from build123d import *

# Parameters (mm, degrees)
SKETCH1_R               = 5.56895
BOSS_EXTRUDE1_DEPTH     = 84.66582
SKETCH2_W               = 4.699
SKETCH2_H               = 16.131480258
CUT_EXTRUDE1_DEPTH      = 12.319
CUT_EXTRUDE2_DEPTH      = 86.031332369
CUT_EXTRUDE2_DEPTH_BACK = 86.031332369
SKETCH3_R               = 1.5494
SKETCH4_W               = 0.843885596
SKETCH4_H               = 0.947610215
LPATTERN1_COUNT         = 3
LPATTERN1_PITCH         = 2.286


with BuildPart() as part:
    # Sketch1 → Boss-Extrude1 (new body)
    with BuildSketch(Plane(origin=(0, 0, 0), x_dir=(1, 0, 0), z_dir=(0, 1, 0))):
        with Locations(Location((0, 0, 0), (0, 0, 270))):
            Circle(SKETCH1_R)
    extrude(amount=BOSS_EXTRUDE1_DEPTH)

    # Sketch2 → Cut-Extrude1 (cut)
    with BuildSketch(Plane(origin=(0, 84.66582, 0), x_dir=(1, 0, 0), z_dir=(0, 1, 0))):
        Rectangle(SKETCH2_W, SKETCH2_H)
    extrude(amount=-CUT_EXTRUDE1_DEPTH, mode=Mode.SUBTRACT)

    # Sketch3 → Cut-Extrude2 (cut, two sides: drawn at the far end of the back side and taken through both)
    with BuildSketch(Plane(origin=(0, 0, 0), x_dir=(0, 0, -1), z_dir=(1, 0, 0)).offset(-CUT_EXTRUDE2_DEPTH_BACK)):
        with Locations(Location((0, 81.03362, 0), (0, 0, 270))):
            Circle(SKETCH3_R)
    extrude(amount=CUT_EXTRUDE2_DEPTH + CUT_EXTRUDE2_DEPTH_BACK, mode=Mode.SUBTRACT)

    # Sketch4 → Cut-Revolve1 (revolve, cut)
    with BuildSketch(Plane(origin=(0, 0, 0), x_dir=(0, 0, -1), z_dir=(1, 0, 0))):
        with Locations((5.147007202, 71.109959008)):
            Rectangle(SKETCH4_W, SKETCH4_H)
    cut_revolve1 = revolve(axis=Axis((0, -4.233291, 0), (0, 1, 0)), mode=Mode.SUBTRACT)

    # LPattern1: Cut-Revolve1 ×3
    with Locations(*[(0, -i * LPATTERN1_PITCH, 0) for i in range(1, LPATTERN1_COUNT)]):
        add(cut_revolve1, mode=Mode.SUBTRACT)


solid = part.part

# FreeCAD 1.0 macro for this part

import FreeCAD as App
import Part
import Sketcher
from FreeCAD import Vector
Q = App.Units.Quantity

doc = App.newDocument("Part")
params = doc.addObject("Spreadsheet::Sheet", "Params")
for row, (alias, value) in enumerate([
    ("pad1_length", "3.3333 in"),
    ("sketch2_width", "0.185 in"),
    ("pocket1_length", "0.485 in"),
    ("sketch3_diameter", "0.122 in"),
    ("groove_angle", "360 deg"),
    ("linearpattern_pitch", "0.09 in"),
], start=1):
    params.set(f"A{row}", alias)
    params.set(f"B{row}", "=" + value)
    params.setAlias(f"B{row}", alias)

body = doc.addObject("PartDesign::Body", "Body")

# Sketch on XZ plane
sketch1 = body.newObject("Sketcher::SketchObject", "Sketch")
sketch1.AttachmentSupport = (doc.getObject("XZ_Plane"), [""])
sketch1.MapMode = "FlatFace"
sketch1.addGeometry(Part.Circle(Vector(0, 0, 0), Vector(0, 0, 1), 6), False)
sketch1.addConstraint([
    Sketcher.Constraint("Coincident", 0, 3, -1, 1),
    Sketcher.Constraint("Diameter", 0, Q("0.4385 in")),
])
pad1 = body.newObject("PartDesign::Pad", "Pad")
pad1.Profile = sketch1
pad1.setExpression("Length", "Params.pad1_length")
pad1.Reversed = True

# Sketch on XZ plane
sketch2 = body.newObject("Sketcher::SketchObject", "Sketch001")
sketch2.AttachmentSupport = (doc.getObject("XZ_Plane"), [""])
sketch2.MapMode = "FlatFace"
sketch2.AttachmentOffset = App.Placement(Vector(0, 0, -3.3333 * 25.4), App.Rotation())
sketch2.addGeometry([
    Part.LineSegment(Vector(-2.3, -8.1, 0), Vector(-2.3, 8.1, 0)),
    Part.LineSegment(Vector(-2.3, 8.1, 0), Vector(2.3, 8.1, 0)),
    Part.LineSegment(Vector(2.3, 8.1, 0), Vector(2.3, -8.1, 0)),
    Part.LineSegment(Vector(2.3, -8.1, 0), Vector(-2.3, -8.1, 0)),
], False)
sketch2.addConstraint([
    Sketcher.Constraint("Coincident", 0, 2, 1, 1),
    Sketcher.Constraint("Coincident", 1, 2, 2, 1),
    Sketcher.Constraint("Coincident", 2, 2, 3, 1),
    Sketcher.Constraint("Coincident", 3, 2, 0, 1),
    Sketcher.Constraint("Vertical", 0),
    Sketcher.Constraint("Horizontal", 1),
    Sketcher.Constraint("Vertical", 2),
    Sketcher.Constraint("Horizontal", 3),
    Sketcher.Constraint("Symmetric", 0, 2, 2, 2, -1, 1),
    Sketcher.Constraint("DistanceX", 1, 1, 1, 2, Q("0.185 in")),
    Sketcher.Constraint("DistanceY", 0, 1, 0, 2, 16.13148),
])
sketch2.setExpression("Constraints[9]", "Params.sketch2_width")
pocket1 = body.newObject("PartDesign::Pocket", "Pocket")
pocket1.Profile = sketch2
pocket1.setExpression("Length", "Params.pocket1_length")
pocket1.Reversed = True

# Sketch on YZ plane
sketch3 = body.newObject("Sketcher::SketchObject", "Sketch002")
sketch3.AttachmentSupport = (doc.getObject("YZ_Plane"), [""])
sketch3.MapMode = "FlatFace"
sketch3.addGeometry(Part.Circle(Vector(81, 0, 0), Vector(0, 0, 1), 1.5), False)
sketch3.addConstraint([
    Sketcher.Constraint("PointOnObject", 0, 3, -1),
    Sketcher.Constraint("Diameter", 0, Q("0.122 in")),
    Sketcher.Constraint("DistanceX", -1, 1, 0, 3, Q("3.1903 in")),
])
sketch3.setExpression("Constraints[1]", "Params.sketch3_diameter")
pocket2 = body.newObject("PartDesign::Pocket", "Pocket001")
pocket2.Profile = sketch3
pocket2.Type = "ThroughAll"
pocket2.Midplane = True

# Sketch on YZ plane
sketch4 = body.newObject("Sketcher::SketchObject", "Sketch003")
sketch4.AttachmentSupport = (doc.getObject("YZ_Plane"), [""])
sketch4.MapMode = "FlatFace"
sketch4.addGeometry([
    Part.LineSegment(Vector(71.6, -4.7, 0), Vector(70.6, -4.7, 0)),
    Part.LineSegment(Vector(70.6, -4.7, 0), Vector(70.6, -5.6, 0)),
    Part.LineSegment(Vector(70.6, -5.6, 0), Vector(71.6, -5.6, 0)),
    Part.LineSegment(Vector(71.6, -5.6, 0), Vector(71.6, -4.7, 0)),
], False)
sketch4.addConstraint([
    Sketcher.Constraint("Coincident", 0, 2, 1, 1),
    Sketcher.Constraint("Coincident", 1, 2, 2, 1),
    Sketcher.Constraint("Coincident", 2, 2, 3, 1),
    Sketcher.Constraint("Coincident", 3, 2, 0, 1),
    Sketcher.Constraint("Horizontal", 0),
    Sketcher.Constraint("Vertical", 1),
    Sketcher.Constraint("Horizontal", 2),
    Sketcher.Constraint("Vertical", 3),
    Sketcher.Constraint("DistanceX", 0, 2, 0, 1, 0.94761),
    Sketcher.Constraint("DistanceY", 1, 2, 1, 1, 0.843886),
    Sketcher.Constraint("DistanceY", 1, 2, -1, 1, 5.56895),
    Sketcher.Constraint("DistanceX", -1, 1, 0, 2, 70.636154),
])
groove = body.newObject("PartDesign::Groove", "Groove")
groove.Profile = sketch4
groove.ReferenceAxis = (sketch4, ["H_Axis"])
groove.setExpression("Angle", "Params.groove_angle")
doc.recompute()

linearpattern = body.newObject("PartDesign::LinearPattern", "LinearPattern")
linearpattern.Originals = [groove]
linearpattern.Direction = (doc.getObject("Y_Axis"), [""])
linearpattern.Mode = "offset"
linearpattern.setExpression("Offset", "Params.linearpattern_pitch")
linearpattern.Occurrences = 3
linearpattern.Reversed = True
body.Tip = linearpattern

doc.recompute()
